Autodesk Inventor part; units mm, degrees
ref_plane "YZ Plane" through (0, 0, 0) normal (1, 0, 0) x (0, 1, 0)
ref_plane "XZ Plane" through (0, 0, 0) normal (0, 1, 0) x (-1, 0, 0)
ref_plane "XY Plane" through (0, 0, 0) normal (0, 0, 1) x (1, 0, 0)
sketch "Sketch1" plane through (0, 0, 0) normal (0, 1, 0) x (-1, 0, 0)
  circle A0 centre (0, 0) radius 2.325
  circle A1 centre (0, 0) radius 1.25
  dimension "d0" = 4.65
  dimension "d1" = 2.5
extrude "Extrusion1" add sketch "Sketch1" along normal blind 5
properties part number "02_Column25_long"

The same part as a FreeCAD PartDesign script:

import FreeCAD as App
import Part
import Sketcher
Q = App.Units.Quantity

doc = App.newDocument("Part")
body = doc.addObject("PartDesign::Body", "Body")

sketch1 = doc.addObject("Sketcher::SketchObject", "Sketch")
body.addObject(sketch1)
sketch1.AttachmentSupport = (doc.XZ_Plane, [""])
sketch1.MapMode = "FlatFace"
sketch1.addGeometry([
    Part.Circle(App.Vector(0, 0, 0), App.Vector(0, 0, 1), 2.3),
    Part.Circle(App.Vector(0, 0, 0), App.Vector(0, 0, 1), 1.2),
], False)
sketch1.addConstraint([
    Sketcher.Constraint("Coincident", 0, 3, -1, 1),
    Sketcher.Constraint("Coincident", 1, 3, -1, 1),
    Sketcher.Constraint("Diameter", 1, Q("2.5 mm")),
    Sketcher.Constraint("Diameter", 0, Q("4.65 mm")),
])
pad1 = doc.addObject("PartDesign::Pad", "Pad")
body.addObject(pad1)
pad1.Profile = sketch1
pad1.Length = 5
pad1.Reversed = True

doc.recompute()
